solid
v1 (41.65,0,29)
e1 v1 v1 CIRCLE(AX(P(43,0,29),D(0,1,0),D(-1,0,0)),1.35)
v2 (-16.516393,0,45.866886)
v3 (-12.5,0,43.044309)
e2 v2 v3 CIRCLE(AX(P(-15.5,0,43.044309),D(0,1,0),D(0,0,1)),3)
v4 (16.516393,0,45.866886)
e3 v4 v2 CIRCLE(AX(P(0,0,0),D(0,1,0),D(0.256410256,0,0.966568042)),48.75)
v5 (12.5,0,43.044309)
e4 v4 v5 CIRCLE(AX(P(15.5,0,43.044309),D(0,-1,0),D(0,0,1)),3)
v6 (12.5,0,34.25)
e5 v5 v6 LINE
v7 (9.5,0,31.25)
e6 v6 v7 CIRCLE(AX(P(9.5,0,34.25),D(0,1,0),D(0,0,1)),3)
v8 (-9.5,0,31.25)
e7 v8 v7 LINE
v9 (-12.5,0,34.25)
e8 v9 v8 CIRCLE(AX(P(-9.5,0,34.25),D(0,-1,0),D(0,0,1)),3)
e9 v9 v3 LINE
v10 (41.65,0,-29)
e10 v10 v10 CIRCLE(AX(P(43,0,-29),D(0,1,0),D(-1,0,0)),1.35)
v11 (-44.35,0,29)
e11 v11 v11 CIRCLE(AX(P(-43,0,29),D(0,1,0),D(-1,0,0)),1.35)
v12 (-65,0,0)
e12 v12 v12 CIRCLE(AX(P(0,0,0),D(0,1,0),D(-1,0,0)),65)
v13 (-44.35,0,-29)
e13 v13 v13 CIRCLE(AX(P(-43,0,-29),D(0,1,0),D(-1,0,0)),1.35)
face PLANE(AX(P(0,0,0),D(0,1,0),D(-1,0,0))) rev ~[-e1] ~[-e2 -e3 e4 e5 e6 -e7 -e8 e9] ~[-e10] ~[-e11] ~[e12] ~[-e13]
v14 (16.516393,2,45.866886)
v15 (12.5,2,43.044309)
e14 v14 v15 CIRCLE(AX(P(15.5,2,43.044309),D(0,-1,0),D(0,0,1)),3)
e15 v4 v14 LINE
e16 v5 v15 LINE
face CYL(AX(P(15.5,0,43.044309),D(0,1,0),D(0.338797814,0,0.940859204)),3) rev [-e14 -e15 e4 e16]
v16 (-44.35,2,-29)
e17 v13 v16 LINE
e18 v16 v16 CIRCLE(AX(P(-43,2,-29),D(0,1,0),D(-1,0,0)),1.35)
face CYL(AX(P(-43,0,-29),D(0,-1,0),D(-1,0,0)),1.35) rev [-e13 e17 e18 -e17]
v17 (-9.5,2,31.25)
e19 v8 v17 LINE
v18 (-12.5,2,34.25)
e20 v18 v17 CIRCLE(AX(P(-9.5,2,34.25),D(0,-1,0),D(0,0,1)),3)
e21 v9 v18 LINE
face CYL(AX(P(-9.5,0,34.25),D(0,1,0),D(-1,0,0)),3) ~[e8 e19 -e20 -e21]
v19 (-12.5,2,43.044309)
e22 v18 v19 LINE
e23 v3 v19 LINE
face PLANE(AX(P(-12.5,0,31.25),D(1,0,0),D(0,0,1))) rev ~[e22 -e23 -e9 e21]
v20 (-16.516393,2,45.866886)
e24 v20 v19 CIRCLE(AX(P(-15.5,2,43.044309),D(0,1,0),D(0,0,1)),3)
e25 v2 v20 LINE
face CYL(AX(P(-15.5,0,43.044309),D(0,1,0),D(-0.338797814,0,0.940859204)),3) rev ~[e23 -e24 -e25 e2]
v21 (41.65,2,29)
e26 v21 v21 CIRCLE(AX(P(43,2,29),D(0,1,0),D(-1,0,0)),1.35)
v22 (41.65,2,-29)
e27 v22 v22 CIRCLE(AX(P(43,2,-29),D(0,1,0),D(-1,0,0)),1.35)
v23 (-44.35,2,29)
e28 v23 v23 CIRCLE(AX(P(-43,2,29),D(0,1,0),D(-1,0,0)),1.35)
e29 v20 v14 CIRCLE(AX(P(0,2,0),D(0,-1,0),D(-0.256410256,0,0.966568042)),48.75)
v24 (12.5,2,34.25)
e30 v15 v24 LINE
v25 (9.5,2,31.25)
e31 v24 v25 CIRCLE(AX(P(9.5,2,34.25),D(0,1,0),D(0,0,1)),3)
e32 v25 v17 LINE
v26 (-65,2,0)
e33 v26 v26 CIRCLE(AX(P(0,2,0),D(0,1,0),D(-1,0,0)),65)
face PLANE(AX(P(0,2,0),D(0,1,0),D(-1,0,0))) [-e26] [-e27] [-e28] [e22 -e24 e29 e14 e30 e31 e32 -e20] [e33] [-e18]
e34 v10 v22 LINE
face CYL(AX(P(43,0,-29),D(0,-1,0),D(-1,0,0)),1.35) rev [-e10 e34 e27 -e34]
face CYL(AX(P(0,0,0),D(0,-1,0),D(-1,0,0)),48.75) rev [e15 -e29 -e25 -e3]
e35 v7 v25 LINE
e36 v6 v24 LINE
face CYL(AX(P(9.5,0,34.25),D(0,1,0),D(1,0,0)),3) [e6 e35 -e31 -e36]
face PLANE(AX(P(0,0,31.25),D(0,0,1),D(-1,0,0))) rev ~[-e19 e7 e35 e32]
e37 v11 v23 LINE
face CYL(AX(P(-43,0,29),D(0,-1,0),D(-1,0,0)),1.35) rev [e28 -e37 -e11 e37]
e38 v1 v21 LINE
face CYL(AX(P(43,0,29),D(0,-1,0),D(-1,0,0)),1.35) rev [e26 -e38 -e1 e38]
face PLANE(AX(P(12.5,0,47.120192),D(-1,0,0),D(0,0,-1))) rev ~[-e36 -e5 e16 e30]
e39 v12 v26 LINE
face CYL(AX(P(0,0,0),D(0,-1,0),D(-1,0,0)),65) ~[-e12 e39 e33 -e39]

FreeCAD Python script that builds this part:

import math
import FreeCAD as App
import Part
import Sketcher
from FreeCAD import Vector


def edges_at(feature, points):
    """Names of the edges that pass closest to the given points."""
    edges = feature.Shape.Edges
    near = lambda p: min(range(len(edges)), key=lambda i: edges[i].distToShape(Part.Vertex(*p))[0])
    return sorted({f"Edge{near(p) + 1}" for p in points})

doc = App.newDocument("Part")
body = doc.addObject("PartDesign::Body", "Body")

# Sketch on XZ plane
sketch1 = body.newObject("Sketcher::SketchObject", "Sketch")
sketch1.AttachmentSupport = (doc.getObject("XZ_Plane"), [""])
sketch1.MapMode = "FlatFace"
sketch1.addGeometry([
    Part.Circle(Vector(0, 0, 0), Vector(0, 0, 1), 65),  # 0
    Part.Circle(Vector(43, -29, 0), Vector(0, 0, 1), 1.4),  # 1
    Part.Circle(Vector(-43, -29, 0), Vector(0, 0, 1), 1.4),  # 2
    Part.Circle(Vector(43, 29, 0), Vector(0, 0, 1), 1.4),  # 3
    Part.LineSegment(Vector(12.5, 47.1, 0), Vector(12.5, 31.2, 0)),  # 4
    Part.LineSegment(Vector(12.5, 31.2, 0), Vector(-12.5, 31.2, 0)),  # 5
    Part.LineSegment(Vector(-12.5, 31.2, 0), Vector(-12.5, 47.1, 0)),  # 6
    Part.ArcOfCircle(Part.Circle(Vector(0, 0, 0), Vector(0, 0, 1), 48.8), math.radians(105), math.radians(435)),  # 7
    Part.Circle(Vector(-43, 29, 0), Vector(0, 0, 1), 1.4),  # 8
], False)
sketch1.addConstraint([
    Sketcher.Constraint("Coincident", 4, 2, 5, 1),
    Sketcher.Constraint("Coincident", 5, 2, 6, 1),
    Sketcher.Constraint("Coincident", 6, 2, 7, 1),
    Sketcher.Constraint("Coincident", 7, 2, 4, 1),
    Sketcher.Constraint("Vertical", 4),
    Sketcher.Constraint("Horizontal", 5),
    Sketcher.Constraint("Vertical", 6),
    Sketcher.Constraint("Coincident", 0, 3, -1, 1),
    Sketcher.Constraint("Coincident", 7, 3, -1, 1),
    Sketcher.Constraint("Equal", 1, 2),
    Sketcher.Constraint("Equal", 2, 3),
    Sketcher.Constraint("Equal", 3, 8),
    Sketcher.Constraint("Symmetric", 2, 3, 3, 3, -1, 1),
    Sketcher.Constraint("Symmetric", 1, 3, 8, 3, -1, 1),
    Sketcher.Constraint("Symmetric", 1, 3, 2, 3, -2),
    Sketcher.Constraint("Horizontal", 6, 2, 7, 2),
    Sketcher.Constraint("Diameter", 0, 130.0),
    Sketcher.Constraint("Diameter", 1, 2.7),
    Sketcher.Constraint("DistanceX", 5, 2, 5, 1, 25.0),
    Sketcher.Constraint("Radius", 7, 48.75),
    Sketcher.Constraint("DistanceY", 1, 3, -1, 1, 29.0),
    Sketcher.Constraint("DistanceX", 2, 3, 1, 3, 86.0),
    Sketcher.Constraint("DistanceY", -1, 1, 4, 2, 31.25),
])
pad1 = body.newObject("PartDesign::Pad", "Pad")
pad1.Profile = sketch1
pad1.Length = 2
pad1.Reversed = True
doc.recompute()

fillet = body.newObject("PartDesign::Fillet", "Fillet")
fillet.Base = (pad1, edges_at(pad1, [
    (12.5, 1, 47.12),
    (12.5, 1, 31.25),
    (-12.5, 1, 31.25),
    (-12.5, 1, 47.12),
]))
fillet.Radius = 3

doc.recompute()
